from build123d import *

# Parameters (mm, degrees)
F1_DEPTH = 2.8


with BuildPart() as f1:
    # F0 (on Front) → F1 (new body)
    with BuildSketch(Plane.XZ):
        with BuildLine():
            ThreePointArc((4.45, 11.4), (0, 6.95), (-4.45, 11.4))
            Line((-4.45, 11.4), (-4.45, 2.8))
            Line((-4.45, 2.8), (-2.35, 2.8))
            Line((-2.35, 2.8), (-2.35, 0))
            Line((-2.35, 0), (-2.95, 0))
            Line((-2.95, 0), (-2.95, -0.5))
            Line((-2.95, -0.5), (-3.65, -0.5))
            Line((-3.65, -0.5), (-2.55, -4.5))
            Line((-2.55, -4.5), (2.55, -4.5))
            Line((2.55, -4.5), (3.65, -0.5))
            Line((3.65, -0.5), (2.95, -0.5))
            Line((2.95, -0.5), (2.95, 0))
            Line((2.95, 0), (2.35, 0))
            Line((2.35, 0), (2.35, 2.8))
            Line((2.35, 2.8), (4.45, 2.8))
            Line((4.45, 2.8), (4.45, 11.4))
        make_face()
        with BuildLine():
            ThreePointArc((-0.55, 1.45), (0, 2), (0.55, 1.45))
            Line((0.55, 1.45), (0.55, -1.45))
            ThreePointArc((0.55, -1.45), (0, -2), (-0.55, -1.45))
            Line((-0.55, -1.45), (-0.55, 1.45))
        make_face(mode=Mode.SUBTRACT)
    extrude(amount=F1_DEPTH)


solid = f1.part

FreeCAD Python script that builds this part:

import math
import FreeCAD as App
import Part
import Sketcher

V = App.Vector
Q = App.Units.Quantity

doc = App.newDocument("Part")
params = doc.addObject("Spreadsheet::Sheet", "Params")
for row, (alias, value) in enumerate([
    ("sketch1_radius", "4.45 mm"),
    ("sketch1_radius2", "0.55 mm"),
    ("sketch1_width", "2.1 mm"),
    ("sketch1_width2", "0.6 mm"),
    ("sketch1_width3", "0.7 mm"),
    ("pad1_length", "2.8 mm"),
], start=1):
    params.set(f"A{row}", alias)
    params.set(f"B{row}", "=" + value)
    params.setAlias(f"B{row}", alias)

body = doc.addObject("PartDesign::Body", "Body")

sketch1 = doc.addObject("Sketcher::SketchObject", "Sketch")
body.addObject(sketch1)
sketch1.AttachmentSupport = (doc.XZ_Plane, [""])
sketch1.MapMode = "FlatFace"
sketch1.addGeometry(Part.ArcOfCircle(Part.Circle(V(0, 11.4, 0), V(0, 0, 1), 4.45), math.radians(180), math.radians(360)), False)
sketch1.addGeometry(Part.LineSegment(V(-4.45, 11.4, 0), V(-4.45, 2.8, 0)), False)
sketch1.addGeometry(Part.LineSegment(V(-4.45, 2.8, 0), V(-2.35, 2.8, 0)), False)
sketch1.addGeometry(Part.LineSegment(V(-2.35, 2.8, 0), V(-2.35, 0, 0)), False)
sketch1.addGeometry(Part.LineSegment(V(-2.35, 0, 0), V(-2.95, 0, 0)), False)
sketch1.addGeometry(Part.LineSegment(V(-2.95, 0, 0), V(-2.95, -0.5, 0)), False)
sketch1.addGeometry(Part.LineSegment(V(-2.95, -0.5, 0), V(-3.65, -0.5, 0)), False)
sketch1.addGeometry(Part.LineSegment(V(-3.65, -0.5, 0), V(-2.55, -4.5, 0)), False)
sketch1.addGeometry(Part.LineSegment(V(-2.55, -4.5, 0), V(2.55, -4.5, 0)), False)
sketch1.addGeometry(Part.LineSegment(V(2.55, -4.5, 0), V(3.65, -0.5, 0)), False)
sketch1.addGeometry(Part.LineSegment(V(3.65, -0.5, 0), V(2.95, -0.5, 0)), False)
sketch1.addGeometry(Part.LineSegment(V(2.95, -0.5, 0), V(2.95, 0, 0)), False)
sketch1.addGeometry(Part.LineSegment(V(2.95, 0, 0), V(2.35, 0, 0)), False)
sketch1.addGeometry(Part.LineSegment(V(2.35, 0, 0), V(2.35, 2.8, 0)), False)
sketch1.addGeometry(Part.LineSegment(V(2.35, 2.8, 0), V(4.45, 2.8, 0)), False)
sketch1.addGeometry(Part.LineSegment(V(4.45, 2.8, 0), V(4.45, 11.4, 0)), False)
sketch1.addGeometry(Part.LineSegment(V(-0.55, -1.45, 0), V(-0.55, 1.45, 0)), False)
sketch1.addGeometry(Part.ArcOfCircle(Part.Circle(V(0, 1.45, 0), V(0, 0, 1), 0.55), math.radians(0), math.radians(180)), False)
sketch1.addGeometry(Part.LineSegment(V(0.55, 1.45, 0), V(0.55, -1.45, 0)), False)
sketch1.addGeometry(Part.ArcOfCircle(Part.Circle(V(0, -1.45, 0), V(0, 0, 1), 0.55), math.radians(180), math.radians(360)), False)
sketch1.addConstraint(Sketcher.Constraint("Tangent", 0, 1, 1, 1))
sketch1.addConstraint(Sketcher.Constraint("Coincident", 1, 2, 2, 1))
sketch1.addConstraint(Sketcher.Constraint("Coincident", 2, 2, 3, 1))
sketch1.addConstraint(Sketcher.Constraint("Coincident", 3, 2, 4, 1))
sketch1.addConstraint(Sketcher.Constraint("Coincident", 4, 2, 5, 1))
sketch1.addConstraint(Sketcher.Constraint("Coincident", 5, 2, 6, 1))
sketch1.addConstraint(Sketcher.Constraint("Coincident", 6, 2, 7, 1))
sketch1.addConstraint(Sketcher.Constraint("Coincident", 7, 2, 8, 1))
sketch1.addConstraint(Sketcher.Constraint("Coincident", 8, 2, 9, 1))
sketch1.addConstraint(Sketcher.Constraint("Coincident", 9, 2, 10, 1))
sketch1.addConstraint(Sketcher.Constraint("Coincident", 10, 2, 11, 1))
sketch1.addConstraint(Sketcher.Constraint("Coincident", 11, 2, 12, 1))
sketch1.addConstraint(Sketcher.Constraint("Coincident", 12, 2, 13, 1))
sketch1.addConstraint(Sketcher.Constraint("Coincident", 13, 2, 14, 1))
sketch1.addConstraint(Sketcher.Constraint("Coincident", 14, 2, 15, 1))
sketch1.addConstraint(Sketcher.Constraint("Tangent", 15, 2, 0, 2))
sketch1.addConstraint(Sketcher.Constraint("Tangent", 16, 2, 17, 2))
sketch1.addConstraint(Sketcher.Constraint("Tangent", 17, 1, 18, 1))
sketch1.addConstraint(Sketcher.Constraint("Tangent", 18, 2, 19, 2))
sketch1.addConstraint(Sketcher.Constraint("Tangent", 19, 1, 16, 1))
sketch1.addConstraint(Sketcher.Constraint("Vertical", 1))
sketch1.addConstraint(Sketcher.Constraint("Horizontal", 2))
sketch1.addConstraint(Sketcher.Constraint("Vertical", 3))
sketch1.addConstraint(Sketcher.Constraint("Horizontal", 4))
sketch1.addConstraint(Sketcher.Constraint("Vertical", 5))
sketch1.addConstraint(Sketcher.Constraint("Horizontal", 6))
sketch1.addConstraint(Sketcher.Constraint("Horizontal", 8))
sketch1.addConstraint(Sketcher.Constraint("Horizontal", 10))
sketch1.addConstraint(Sketcher.Constraint("Vertical", 11))
sketch1.addConstraint(Sketcher.Constraint("Horizontal", 12))
sketch1.addConstraint(Sketcher.Constraint("Vertical", 13))
sketch1.addConstraint(Sketcher.Constraint("Horizontal", 14))
sketch1.addConstraint(Sketcher.Constraint("Vertical", 15))
sketch1.addConstraint(Sketcher.Constraint("Vertical", 16))
sketch1.addConstraint(Sketcher.Constraint("Vertical", 18))
sketch1.addConstraint(Sketcher.Constraint("Symmetric", 17, 3, 19, 3, -1, 1))
sketch1.addConstraint(Sketcher.Constraint("Symmetric", 4, 2, 11, 2, -1, 1))
sketch1.addConstraint(Sketcher.Constraint("Symmetric", 6, 2, 9, 2, -2))
sketch1.addConstraint(Sketcher.Constraint("Symmetric", 3, 2, 12, 2, -2))
sketch1.addConstraint(Sketcher.Constraint("Symmetric", 1, 2, 14, 2, -2))
sketch1.addConstraint(Sketcher.Constraint("Equal", 7, 9))
sketch1.addConstraint(Sketcher.Constraint("Radius", 0, Q("4.45 mm")))
sketch1.addConstraint(Sketcher.Constraint("Radius", 17, Q("0.55 mm")))
sketch1.addConstraint(Sketcher.Constraint("DistanceX", 2, 1, 2, 2, Q("2.1 mm")))
sketch1.addConstraint(Sketcher.Constraint("DistanceX", 4, 2, 4, 1, Q("0.6 mm")))
sketch1.addConstraint(Sketcher.Constraint("DistanceX", 6, 2, 6, 1, Q("0.7 mm")))
sketch1.addConstraint(Sketcher.Constraint("DistanceX", 8, 1, 8, 2, Q("5.1 mm")))
sketch1.addConstraint(Sketcher.Constraint("DistanceY", 1, 2, 1, 1, Q("8.6 mm")))
sketch1.addConstraint(Sketcher.Constraint("DistanceY", 3, 2, 3, 1, Q("2.8 mm")))
sketch1.addConstraint(Sketcher.Constraint("DistanceY", 5, 2, 5, 1, Q("0.5 mm")))
sketch1.addConstraint(Sketcher.Constraint("DistanceY", 16, 1, 16, 2, Q("2.9 mm")))
sketch1.addConstraint(Sketcher.Constraint("DistanceY", 7, 2, 5, 2, Q("4 mm")))
sketch1.setExpression("Constraints[41]", "Params.sketch1_radius")
sketch1.setExpression("Constraints[42]", "Params.sketch1_radius2")
sketch1.setExpression("Constraints[43]", "Params.sketch1_width")
sketch1.setExpression("Constraints[44]", "Params.sketch1_width2")
sketch1.setExpression("Constraints[45]", "Params.sketch1_width3")
pad1 = doc.addObject("PartDesign::Pad", "Pad")
body.addObject(pad1)
pad1.Profile = sketch1
pad1.setExpression("Length", "Params.pad1_length")

doc.recompute()
